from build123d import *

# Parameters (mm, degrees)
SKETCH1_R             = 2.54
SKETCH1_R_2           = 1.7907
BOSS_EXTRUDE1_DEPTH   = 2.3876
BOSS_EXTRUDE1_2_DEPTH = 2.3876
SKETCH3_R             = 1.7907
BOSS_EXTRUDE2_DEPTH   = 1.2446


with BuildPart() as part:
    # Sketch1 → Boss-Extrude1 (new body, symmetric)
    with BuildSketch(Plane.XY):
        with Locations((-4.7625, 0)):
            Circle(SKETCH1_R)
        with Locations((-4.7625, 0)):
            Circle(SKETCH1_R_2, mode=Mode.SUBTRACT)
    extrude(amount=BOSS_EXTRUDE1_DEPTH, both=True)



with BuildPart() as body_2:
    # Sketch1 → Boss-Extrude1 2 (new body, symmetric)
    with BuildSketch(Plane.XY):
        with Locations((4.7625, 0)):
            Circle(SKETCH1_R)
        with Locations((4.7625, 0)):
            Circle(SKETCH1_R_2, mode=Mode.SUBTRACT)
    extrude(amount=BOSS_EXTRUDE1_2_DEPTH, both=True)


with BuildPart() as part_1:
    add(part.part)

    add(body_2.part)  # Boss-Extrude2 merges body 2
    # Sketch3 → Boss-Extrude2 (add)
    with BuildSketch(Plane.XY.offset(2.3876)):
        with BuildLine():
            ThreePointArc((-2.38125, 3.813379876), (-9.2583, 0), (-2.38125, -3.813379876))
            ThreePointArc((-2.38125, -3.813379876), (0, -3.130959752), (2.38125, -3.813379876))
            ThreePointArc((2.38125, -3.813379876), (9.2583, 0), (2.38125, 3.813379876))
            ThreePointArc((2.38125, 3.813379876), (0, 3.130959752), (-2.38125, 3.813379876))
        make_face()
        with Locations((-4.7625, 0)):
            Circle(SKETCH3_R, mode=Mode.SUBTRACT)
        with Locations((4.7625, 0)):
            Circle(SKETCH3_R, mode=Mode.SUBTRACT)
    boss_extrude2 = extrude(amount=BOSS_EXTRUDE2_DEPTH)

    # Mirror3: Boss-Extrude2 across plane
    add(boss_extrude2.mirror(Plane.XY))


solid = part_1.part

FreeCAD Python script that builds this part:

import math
import FreeCAD as App
import Part
import Sketcher

V = App.Vector
Q = App.Units.Quantity

doc = App.newDocument("Part")
params = doc.addObject("Spreadsheet::Sheet", "Params")
for row, (alias, value) in enumerate([
    ("sketch1_diameter", "0.2 in"),
    ("sketch1_diameter2", "0.141 in"),
    ("pad1_length", "0.188 in"),
    ("sketch2_diameter", "0.2 in"),
    ("sketch2_diameter2", "0.141 in"),
    ("pad2_length", "0.188 in"),
    ("sketch3_diameter", "0.141 in"),
    ("sketch3_radius", "0.177 in"),
    ("pad3_length", "0.049 in"),
], start=1):
    params.set(f"A{row}", alias)
    params.set(f"B{row}", "=" + value)
    params.setAlias(f"B{row}", alias)

body = doc.addObject("PartDesign::Body", "Body")

sketch1 = body.newObject("Sketcher::SketchObject", "Sketch")
sketch1.AttachmentSupport = (doc.getObject("XY_Plane"), [""])
sketch1.MapMode = "FlatFace"
sketch1.addGeometry(Part.Circle(V(-4.7625, 0, 0), V(0, 0, 1), 2.54), False)
sketch1.addGeometry(Part.Circle(V(-4.7625, 0, 0), V(0, 0, 1), 1.7907), False)
sketch1.addConstraint(Sketcher.Constraint("Coincident", 1, 3, 0, 3))
sketch1.addConstraint(Sketcher.Constraint("PointOnObject", 0, 3, -1))
sketch1.addConstraint(Sketcher.Constraint("Diameter", 0, Q("0.2 in")))
sketch1.addConstraint(Sketcher.Constraint("Diameter", 1, Q("0.141 in")))
sketch1.addConstraint(Sketcher.Constraint("DistanceX", 0, 3, -1, 1, Q("0.1875 in")))
sketch1.setExpression("Constraints[2]", "Params.sketch1_diameter")
sketch1.setExpression("Constraints[3]", "Params.sketch1_diameter2")
pad1 = body.newObject("PartDesign::Pad", "Pad")
pad1.Profile = sketch1
pad1.setExpression("Length", "Params.pad1_length")
pad1.Midplane = True
body2 = doc.addObject("PartDesign::Body", "Body001")

sketch2 = body2.newObject("Sketcher::SketchObject", "Sketch001")
sketch2.AttachmentSupport = (doc.getObject("XY_Plane001"), [""])
sketch2.MapMode = "FlatFace"
sketch2.addGeometry(Part.Circle(V(4.7625, 0, 0), V(0, 0, 1), 2.54), False)
sketch2.addGeometry(Part.Circle(V(4.7625, 0, 0), V(0, 0, 1), 1.7907), False)
sketch2.addConstraint(Sketcher.Constraint("Coincident", 1, 3, 0, 3))
sketch2.addConstraint(Sketcher.Constraint("PointOnObject", 0, 3, -1))
sketch2.addConstraint(Sketcher.Constraint("Diameter", 0, Q("0.2 in")))
sketch2.addConstraint(Sketcher.Constraint("Diameter", 1, Q("0.141 in")))
sketch2.addConstraint(Sketcher.Constraint("DistanceX", -1, 1, 0, 3, Q("0.1875 in")))
sketch2.setExpression("Constraints[2]", "Params.sketch2_diameter")
sketch2.setExpression("Constraints[3]", "Params.sketch2_diameter2")
pad2 = body2.newObject("PartDesign::Pad", "Pad001")
pad2.Profile = sketch2
pad2.setExpression("Length", "Params.pad2_length")
pad2.Midplane = True
body.AllowCompound = True
doc.recompute()

boolean = body.newObject("PartDesign::Boolean", "Boolean")
boolean.Type = "Fuse"
boolean.addObjects([body2])

sketch3 = body.newObject("Sketcher::SketchObject", "Sketch002")
sketch3.AttachmentSupport = (doc.getObject("XY_Plane"), [""])
sketch3.MapMode = "FlatFace"
sketch3.AttachmentOffset = App.Placement(V(0, 0, 0.094 * 25.4), App.Rotation())
sketch3.addGeometry(Part.ArcOfCircle(Part.Circle(V(-4.7625, 0, 0), V(0, 0, 1), 4.4958), math.radians(58.017446), math.radians(301.982554)), False)
sketch3.addGeometry(Part.ArcOfCircle(Part.Circle(V(0, -7.62676, 0), V(0, 0, 1), 4.4958), math.radians(58.017446), math.radians(121.982554)), False)
sketch3.addGeometry(Part.ArcOfCircle(Part.Circle(V(4.7625, 0, 0), V(0, 0, 1), 4.4958), math.radians(-121.982554), math.radians(121.982554)), False)
sketch3.addGeometry(Part.ArcOfCircle(Part.Circle(V(0, 7.62676, 0), V(0, 0, 1), 4.4958), math.radians(-121.982554), math.radians(-58.017446)), False)
sketch3.addGeometry(Part.Circle(V(-4.7625, 0, 0), V(0, 0, 1), 1.7907), False)
sketch3.addGeometry(Part.Circle(V(4.7625, 0, 0), V(0, 0, 1), 1.7907), False)
sketch3.addConstraint(Sketcher.Constraint("Tangent", 0, 2, 1, 2))
sketch3.addConstraint(Sketcher.Constraint("Tangent", 1, 1, 2, 1))
sketch3.addConstraint(Sketcher.Constraint("Tangent", 2, 2, 3, 2))
sketch3.addConstraint(Sketcher.Constraint("Tangent", 3, 1, 0, 1))
sketch3.addConstraint(Sketcher.Constraint("Coincident", 4, 3, 0, 3))
sketch3.addConstraint(Sketcher.Constraint("Coincident", 5, 3, 2, 3))
sketch3.addConstraint(Sketcher.Constraint("Equal", 0, 1))
sketch3.addConstraint(Sketcher.Constraint("Equal", 1, 2))
sketch3.addConstraint(Sketcher.Constraint("Equal", 2, 3))
sketch3.addConstraint(Sketcher.Constraint("Equal", 4, 5))
sketch3.addConstraint(Sketcher.Constraint("Symmetric", 0, 3, 2, 3, -1, 1))
sketch3.addConstraint(Sketcher.Constraint("PointOnObject", 0, 3, -1))
sketch3.addConstraint(Sketcher.Constraint("Diameter", 4, Q("0.141 in")))
sketch3.addConstraint(Sketcher.Constraint("Radius", 0, Q("0.177 in")))
sketch3.addConstraint(Sketcher.Constraint("DistanceX", 0, 3, -1, 1, Q("0.1875 in")))
sketch3.setExpression("Constraints[12]", "Params.sketch3_diameter")
sketch3.setExpression("Constraints[13]", "Params.sketch3_radius")
pad3 = body.newObject("PartDesign::Pad", "Pad002")
pad3.Profile = sketch3
pad3.setExpression("Length", "Params.pad3_length")
doc.recompute()

mirrored = body.newObject("PartDesign::Mirrored", "Mirrored")
mirrored.Originals = [pad3]
mirrored.MirrorPlane = (doc.getObject("XY_Plane"), [""])
body.Tip = mirrored

doc.recompute()
